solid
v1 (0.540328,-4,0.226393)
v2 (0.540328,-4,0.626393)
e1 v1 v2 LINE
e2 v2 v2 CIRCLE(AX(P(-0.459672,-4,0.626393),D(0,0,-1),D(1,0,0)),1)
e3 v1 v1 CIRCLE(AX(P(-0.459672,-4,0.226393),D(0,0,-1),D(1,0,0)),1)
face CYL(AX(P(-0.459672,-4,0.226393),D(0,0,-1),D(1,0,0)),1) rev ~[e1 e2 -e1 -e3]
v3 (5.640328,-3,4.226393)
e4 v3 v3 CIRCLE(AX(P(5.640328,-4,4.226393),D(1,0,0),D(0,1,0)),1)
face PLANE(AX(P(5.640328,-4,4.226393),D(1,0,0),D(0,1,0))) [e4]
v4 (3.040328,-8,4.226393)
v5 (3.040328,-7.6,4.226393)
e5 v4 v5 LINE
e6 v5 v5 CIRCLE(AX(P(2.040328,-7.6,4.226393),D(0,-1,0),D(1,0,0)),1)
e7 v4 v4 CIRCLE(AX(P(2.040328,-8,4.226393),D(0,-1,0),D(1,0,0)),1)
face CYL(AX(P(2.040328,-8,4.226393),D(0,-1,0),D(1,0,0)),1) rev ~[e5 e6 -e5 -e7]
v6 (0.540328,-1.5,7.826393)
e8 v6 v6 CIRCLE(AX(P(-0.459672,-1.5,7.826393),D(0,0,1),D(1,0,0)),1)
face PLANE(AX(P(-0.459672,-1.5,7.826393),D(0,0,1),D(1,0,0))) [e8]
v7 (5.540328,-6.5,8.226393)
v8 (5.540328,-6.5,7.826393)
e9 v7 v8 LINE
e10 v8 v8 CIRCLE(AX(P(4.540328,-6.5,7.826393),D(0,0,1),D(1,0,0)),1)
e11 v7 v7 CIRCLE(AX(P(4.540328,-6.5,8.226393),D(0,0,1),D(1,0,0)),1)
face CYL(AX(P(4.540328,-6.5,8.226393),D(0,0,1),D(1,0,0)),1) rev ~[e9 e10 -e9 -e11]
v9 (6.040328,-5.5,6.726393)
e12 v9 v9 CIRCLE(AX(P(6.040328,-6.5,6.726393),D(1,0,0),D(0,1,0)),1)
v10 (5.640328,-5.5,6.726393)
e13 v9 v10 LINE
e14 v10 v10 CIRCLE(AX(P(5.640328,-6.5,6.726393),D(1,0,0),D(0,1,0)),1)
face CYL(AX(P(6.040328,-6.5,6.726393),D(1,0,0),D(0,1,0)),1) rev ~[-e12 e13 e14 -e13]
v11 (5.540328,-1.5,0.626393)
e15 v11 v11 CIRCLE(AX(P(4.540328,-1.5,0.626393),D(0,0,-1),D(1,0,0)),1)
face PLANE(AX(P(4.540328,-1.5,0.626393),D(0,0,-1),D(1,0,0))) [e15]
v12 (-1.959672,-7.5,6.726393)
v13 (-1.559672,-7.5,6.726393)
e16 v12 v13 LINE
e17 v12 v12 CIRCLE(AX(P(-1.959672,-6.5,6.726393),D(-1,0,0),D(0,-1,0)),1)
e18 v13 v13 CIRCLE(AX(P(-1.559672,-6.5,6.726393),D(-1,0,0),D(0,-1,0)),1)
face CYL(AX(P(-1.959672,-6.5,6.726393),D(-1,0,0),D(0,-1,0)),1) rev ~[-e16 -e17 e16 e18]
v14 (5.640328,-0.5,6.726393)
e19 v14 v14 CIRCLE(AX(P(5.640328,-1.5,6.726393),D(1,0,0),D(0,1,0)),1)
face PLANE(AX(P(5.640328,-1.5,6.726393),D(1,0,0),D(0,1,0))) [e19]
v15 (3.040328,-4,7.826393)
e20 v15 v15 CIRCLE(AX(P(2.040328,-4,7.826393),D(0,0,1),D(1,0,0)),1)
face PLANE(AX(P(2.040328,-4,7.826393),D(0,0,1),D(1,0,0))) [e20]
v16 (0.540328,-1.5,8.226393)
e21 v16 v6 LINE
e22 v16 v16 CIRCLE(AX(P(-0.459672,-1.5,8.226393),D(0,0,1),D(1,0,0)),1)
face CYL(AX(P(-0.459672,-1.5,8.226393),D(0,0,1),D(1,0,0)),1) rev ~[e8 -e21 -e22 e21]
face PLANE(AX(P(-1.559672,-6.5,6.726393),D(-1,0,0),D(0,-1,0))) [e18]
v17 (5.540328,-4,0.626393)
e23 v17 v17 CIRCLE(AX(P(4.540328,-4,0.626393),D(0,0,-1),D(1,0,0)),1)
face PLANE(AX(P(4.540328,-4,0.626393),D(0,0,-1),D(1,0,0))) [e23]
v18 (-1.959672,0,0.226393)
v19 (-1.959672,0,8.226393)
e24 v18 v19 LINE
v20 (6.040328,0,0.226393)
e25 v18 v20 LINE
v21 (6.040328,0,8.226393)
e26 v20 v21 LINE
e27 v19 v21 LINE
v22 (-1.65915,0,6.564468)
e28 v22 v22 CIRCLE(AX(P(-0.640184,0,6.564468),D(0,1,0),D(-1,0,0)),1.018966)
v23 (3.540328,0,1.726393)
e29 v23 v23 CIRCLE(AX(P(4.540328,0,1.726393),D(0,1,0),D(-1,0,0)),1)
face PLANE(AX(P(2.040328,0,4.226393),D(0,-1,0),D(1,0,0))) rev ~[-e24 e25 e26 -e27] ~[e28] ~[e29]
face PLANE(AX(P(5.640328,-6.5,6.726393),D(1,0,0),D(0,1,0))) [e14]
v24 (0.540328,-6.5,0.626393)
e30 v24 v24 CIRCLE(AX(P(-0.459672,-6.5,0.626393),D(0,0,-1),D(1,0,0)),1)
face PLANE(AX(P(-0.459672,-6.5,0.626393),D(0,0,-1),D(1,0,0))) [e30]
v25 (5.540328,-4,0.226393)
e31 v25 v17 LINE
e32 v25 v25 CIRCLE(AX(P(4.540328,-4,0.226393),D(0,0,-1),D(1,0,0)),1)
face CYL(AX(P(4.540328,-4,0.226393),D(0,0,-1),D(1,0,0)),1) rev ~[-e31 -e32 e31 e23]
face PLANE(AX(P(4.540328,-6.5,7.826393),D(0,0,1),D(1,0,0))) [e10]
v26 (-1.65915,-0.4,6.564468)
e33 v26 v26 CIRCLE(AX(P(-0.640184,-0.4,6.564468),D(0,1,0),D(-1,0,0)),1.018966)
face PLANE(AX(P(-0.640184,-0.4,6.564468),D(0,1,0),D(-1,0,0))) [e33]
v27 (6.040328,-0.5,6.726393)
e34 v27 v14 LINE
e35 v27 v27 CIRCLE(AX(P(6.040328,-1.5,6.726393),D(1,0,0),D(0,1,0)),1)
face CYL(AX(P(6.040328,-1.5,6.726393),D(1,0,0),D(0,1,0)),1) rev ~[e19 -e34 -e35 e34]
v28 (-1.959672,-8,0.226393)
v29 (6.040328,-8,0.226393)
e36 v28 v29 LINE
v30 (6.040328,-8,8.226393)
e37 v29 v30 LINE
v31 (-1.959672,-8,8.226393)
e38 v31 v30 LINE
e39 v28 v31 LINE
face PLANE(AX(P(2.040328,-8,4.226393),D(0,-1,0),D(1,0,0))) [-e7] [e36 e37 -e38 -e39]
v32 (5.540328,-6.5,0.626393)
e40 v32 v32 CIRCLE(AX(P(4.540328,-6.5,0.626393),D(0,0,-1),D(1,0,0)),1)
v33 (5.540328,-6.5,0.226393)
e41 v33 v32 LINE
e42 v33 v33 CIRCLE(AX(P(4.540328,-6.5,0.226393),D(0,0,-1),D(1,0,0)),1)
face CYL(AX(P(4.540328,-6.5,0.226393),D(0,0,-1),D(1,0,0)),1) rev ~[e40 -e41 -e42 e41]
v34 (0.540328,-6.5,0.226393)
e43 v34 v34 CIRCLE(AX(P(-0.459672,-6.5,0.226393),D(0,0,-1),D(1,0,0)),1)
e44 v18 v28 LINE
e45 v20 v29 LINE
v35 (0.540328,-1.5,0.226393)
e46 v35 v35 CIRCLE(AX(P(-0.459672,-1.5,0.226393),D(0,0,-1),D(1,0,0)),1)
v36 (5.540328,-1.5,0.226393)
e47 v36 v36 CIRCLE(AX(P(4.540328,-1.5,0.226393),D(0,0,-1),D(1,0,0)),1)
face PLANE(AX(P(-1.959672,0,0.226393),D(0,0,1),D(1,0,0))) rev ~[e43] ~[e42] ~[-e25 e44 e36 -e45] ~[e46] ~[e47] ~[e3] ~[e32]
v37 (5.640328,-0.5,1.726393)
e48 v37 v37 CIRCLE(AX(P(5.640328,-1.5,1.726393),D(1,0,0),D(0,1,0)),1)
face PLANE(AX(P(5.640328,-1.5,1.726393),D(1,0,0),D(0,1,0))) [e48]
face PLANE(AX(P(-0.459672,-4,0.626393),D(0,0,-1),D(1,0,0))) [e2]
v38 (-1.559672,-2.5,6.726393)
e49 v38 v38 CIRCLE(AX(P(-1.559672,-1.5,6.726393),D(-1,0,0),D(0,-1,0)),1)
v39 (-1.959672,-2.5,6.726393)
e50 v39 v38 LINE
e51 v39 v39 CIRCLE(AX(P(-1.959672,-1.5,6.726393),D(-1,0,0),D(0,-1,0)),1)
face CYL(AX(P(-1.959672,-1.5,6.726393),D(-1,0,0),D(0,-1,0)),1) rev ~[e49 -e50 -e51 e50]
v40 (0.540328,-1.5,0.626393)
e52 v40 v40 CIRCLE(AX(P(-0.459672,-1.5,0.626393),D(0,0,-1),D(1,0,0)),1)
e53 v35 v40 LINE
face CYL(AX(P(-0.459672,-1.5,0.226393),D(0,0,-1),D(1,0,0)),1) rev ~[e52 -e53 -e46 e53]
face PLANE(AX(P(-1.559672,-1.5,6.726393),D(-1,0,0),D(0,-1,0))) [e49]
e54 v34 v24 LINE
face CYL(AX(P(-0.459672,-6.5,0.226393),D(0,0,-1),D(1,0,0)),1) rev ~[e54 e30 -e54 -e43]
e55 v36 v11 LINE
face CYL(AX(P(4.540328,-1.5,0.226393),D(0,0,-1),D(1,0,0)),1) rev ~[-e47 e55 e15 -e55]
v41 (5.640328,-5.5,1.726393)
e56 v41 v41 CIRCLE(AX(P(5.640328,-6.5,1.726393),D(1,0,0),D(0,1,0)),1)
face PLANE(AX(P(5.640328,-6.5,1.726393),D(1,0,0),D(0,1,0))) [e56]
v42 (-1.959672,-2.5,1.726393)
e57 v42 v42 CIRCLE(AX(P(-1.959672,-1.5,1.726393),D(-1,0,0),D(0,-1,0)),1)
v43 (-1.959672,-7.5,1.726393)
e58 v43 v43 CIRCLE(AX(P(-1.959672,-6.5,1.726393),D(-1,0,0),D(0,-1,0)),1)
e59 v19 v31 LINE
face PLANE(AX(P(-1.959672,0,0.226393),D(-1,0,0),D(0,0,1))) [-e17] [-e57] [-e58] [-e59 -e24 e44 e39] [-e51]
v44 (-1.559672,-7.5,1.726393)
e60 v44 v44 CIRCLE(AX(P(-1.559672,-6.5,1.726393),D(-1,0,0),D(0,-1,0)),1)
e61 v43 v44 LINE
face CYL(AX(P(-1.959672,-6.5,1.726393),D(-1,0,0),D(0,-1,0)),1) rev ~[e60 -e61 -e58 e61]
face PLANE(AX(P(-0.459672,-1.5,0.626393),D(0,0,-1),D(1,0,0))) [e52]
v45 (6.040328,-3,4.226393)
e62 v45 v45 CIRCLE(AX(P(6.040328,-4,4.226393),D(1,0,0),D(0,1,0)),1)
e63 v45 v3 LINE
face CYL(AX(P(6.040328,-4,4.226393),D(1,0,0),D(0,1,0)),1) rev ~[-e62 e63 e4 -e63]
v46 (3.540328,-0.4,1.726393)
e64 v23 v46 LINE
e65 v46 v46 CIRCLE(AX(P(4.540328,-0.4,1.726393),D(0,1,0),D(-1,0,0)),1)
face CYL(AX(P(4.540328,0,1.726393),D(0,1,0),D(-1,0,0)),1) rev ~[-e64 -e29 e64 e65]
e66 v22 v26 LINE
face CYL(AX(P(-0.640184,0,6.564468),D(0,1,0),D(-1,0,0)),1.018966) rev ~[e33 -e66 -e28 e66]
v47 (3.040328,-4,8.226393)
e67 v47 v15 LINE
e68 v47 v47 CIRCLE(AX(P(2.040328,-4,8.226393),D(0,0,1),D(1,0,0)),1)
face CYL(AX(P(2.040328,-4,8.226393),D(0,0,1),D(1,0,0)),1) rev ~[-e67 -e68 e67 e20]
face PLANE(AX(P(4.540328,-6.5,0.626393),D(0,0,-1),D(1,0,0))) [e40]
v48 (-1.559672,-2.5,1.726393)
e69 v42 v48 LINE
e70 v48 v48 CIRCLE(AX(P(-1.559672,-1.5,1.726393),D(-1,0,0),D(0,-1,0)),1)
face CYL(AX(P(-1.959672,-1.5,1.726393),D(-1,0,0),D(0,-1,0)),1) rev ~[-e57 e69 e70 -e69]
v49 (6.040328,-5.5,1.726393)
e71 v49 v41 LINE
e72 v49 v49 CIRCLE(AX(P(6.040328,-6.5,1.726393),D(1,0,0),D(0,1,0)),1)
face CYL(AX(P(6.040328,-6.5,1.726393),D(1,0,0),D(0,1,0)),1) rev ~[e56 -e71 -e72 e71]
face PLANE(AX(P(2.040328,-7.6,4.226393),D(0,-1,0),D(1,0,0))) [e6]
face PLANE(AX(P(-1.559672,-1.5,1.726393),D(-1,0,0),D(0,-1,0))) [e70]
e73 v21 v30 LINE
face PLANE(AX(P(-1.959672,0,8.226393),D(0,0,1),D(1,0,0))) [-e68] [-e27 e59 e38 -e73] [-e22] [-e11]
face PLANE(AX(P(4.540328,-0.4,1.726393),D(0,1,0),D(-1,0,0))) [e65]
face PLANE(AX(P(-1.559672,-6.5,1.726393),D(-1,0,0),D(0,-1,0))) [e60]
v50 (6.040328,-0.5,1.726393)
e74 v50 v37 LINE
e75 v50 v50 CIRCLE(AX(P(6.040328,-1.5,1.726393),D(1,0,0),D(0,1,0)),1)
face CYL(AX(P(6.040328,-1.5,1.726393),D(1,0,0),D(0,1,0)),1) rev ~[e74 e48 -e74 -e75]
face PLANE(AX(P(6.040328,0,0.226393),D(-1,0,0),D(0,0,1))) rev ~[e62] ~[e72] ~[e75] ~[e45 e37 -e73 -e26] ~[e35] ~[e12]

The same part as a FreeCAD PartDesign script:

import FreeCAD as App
import Part
import Sketcher


def add_polygon(sketch, points):
    """Adds a closed chain of lines whose ends are joined by coincident constraints."""
    first, n = sketch.GeometryCount, len(points)
    for a, b in zip(points, points[1:] + points[:1]):
        sketch.addGeometry(Part.LineSegment(App.Vector(*a, 0), App.Vector(*b, 0)), False)
    for i in range(n):
        sketch.addConstraint(Sketcher.Constraint("Coincident", first + i, 2, first + (i + 1) % n, 1))

doc = App.newDocument("Part")
params = doc.addObject("Spreadsheet::Sheet", "Params")
for row, (alias, value) in enumerate([
    ("sketch1_width", "8 mm"),
    ("pad1_length", "8 mm"),
    ("sketch2_diameter", "2 mm"),
    ("pocket1_length", "0.4 mm"),
    ("sketch3_diameter", "2 mm"),
    ("pocket2_length", "0.4 mm"),
    ("sketch4_diameter", "2 mm"),
    ("pocket3_length", "0.4 mm"),
    ("sketch5_diameter", "2 mm"),
    ("pocket4_length", "0.4 mm"),
    ("sketch6_diameter", "2 mm"),
    ("pocket5_length", "0.4 mm"),
    ("sketch7_diameter", "2 mm"),
    ("pocket6_length", "0.4 mm"),
], start=1):
    params.set(f"A{row}", alias)
    params.set(f"B{row}", "=" + value)
    params.setAlias(f"B{row}", alias)

body = doc.addObject("PartDesign::Body", "Body")

# Sketch on XZ plane
sketch1 = doc.addObject("Sketcher::SketchObject", "Sketch")
body.addObject(sketch1)
sketch1.AttachmentSupport = (doc.XZ_Plane, [""])
sketch1.MapMode = "FlatFace"
add_polygon(sketch1, [(-2, 8), (-2, 0), (6, 0), (6, 8)])  # lines 0-3
sketch1.addConstraint([
    Sketcher.Constraint("Vertical", 0),
    Sketcher.Constraint("Horizontal", 1),
    Sketcher.Constraint("Vertical", 2),
    Sketcher.Constraint("Horizontal", 3),
    Sketcher.Constraint("Equal", 3, 0),
    Sketcher.Constraint("DistanceX", 1, 1, 1, 2, 8.0),
    Sketcher.Constraint("DistanceX", 0, 2, -1, 1, 1.959672),
    Sketcher.Constraint("DistanceY", -1, 1, 0, 2, 0.226393),
])
sketch1.setExpression("Constraints[9]", "Params.sketch1_width")
pad1 = doc.addObject("PartDesign::Pad", "Pad")
body.addObject(pad1)
pad1.Profile = sketch1
pad1.setExpression("Length", "Params.pad1_length")

# Sketch on XZ plane
sketch2 = doc.addObject("Sketcher::SketchObject", "Sketch001")
body.addObject(sketch2)
sketch2.AttachmentSupport = (doc.XZ_Plane, [""])
sketch2.MapMode = "FlatFace"
sketch2.AttachmentOffset = App.Placement(App.Vector(0, 0, 8), App.Rotation())
sketch2.addGeometry(Part.Circle(App.Vector(2, 4.2, 0), App.Vector(0, 0, 1), 1), False)
sketch2.addConstraint([
    Sketcher.Constraint("Diameter", 0, 2.0),
    Sketcher.Constraint("DistanceX", -1, 1, 0, 3, 2.040328),
    Sketcher.Constraint("DistanceY", -1, 1, 0, 3, 4.226393),
])
sketch2.setExpression("Constraints[0]", "Params.sketch2_diameter")
pocket1 = doc.addObject("PartDesign::Pocket", "Pocket")
body.addObject(pocket1)
pocket1.Profile = sketch2
pocket1.setExpression("Length", "Params.pocket1_length")

# Sketch on XZ plane
sketch3 = doc.addObject("Sketcher::SketchObject", "Sketch002")
body.addObject(sketch3)
sketch3.AttachmentSupport = (doc.XZ_Plane, [""])
sketch3.MapMode = "FlatFace"
sketch3.addGeometry([
    Part.Circle(App.Vector(4.5, 1.7, 0), App.Vector(0, 0, 1), 1),
    Part.Circle(App.Vector(-0.6, 6.6, 0), App.Vector(0, 0, 1), 1),
], False)
sketch3.addConstraint([
    Sketcher.Constraint("Diameter", 0, 2.0),
    Sketcher.Constraint("Diameter", 1, 2.037932),
    Sketcher.Constraint("DistanceX", 1, 3, 0, 3, 5.180512),
    Sketcher.Constraint("DistanceX", -1, 1, 0, 3, 4.540328),
    Sketcher.Constraint("DistanceY", -1, 1, 0, 3, 1.726393),
    Sketcher.Constraint("DistanceY", -1, 1, 1, 3, 6.564468),
])
sketch3.setExpression("Constraints[0]", "Params.sketch3_diameter")
pocket2 = doc.addObject("PartDesign::Pocket", "Pocket001")
body.addObject(pocket2)
pocket2.Profile = sketch3
pocket2.setExpression("Length", "Params.pocket2_length")
pocket2.Reversed = True

# Sketch on YZ plane
sketch4 = doc.addObject("Sketcher::SketchObject", "Sketch003")
body.addObject(sketch4)
sketch4.AttachmentSupport = (doc.YZ_Plane, [""])
sketch4.MapMode = "FlatFace"
sketch4.AttachmentOffset = App.Placement(App.Vector(0, 0, -1.959672), App.Rotation())
sketch4.addGeometry([
    Part.Circle(App.Vector(-6.5, 6.7, 0), App.Vector(0, 0, 1), 1),
    Part.Circle(App.Vector(-1.5, 6.7, 0), App.Vector(0, 0, 1), 1),
    Part.Circle(App.Vector(-1.5, 1.7, 0), App.Vector(0, 0, 1), 1),
    Part.Circle(App.Vector(-6.5, 1.7, 0), App.Vector(0, 0, 1), 1),
], False)
sketch4.addConstraint([
    Sketcher.Constraint("Equal", 0, 1),
    Sketcher.Constraint("Equal", 1, 2),
    Sketcher.Constraint("Equal", 2, 3),
    Sketcher.Constraint("Horizontal", 0, 3, 1, 3),
    Sketcher.Constraint("Horizontal", 2, 3, 3, 3),
    Sketcher.Constraint("Vertical", 1, 3, 2, 3),
    Sketcher.Constraint("Vertical", 0, 3, 3, 3),
    Sketcher.Constraint("Diameter", 0, 2.0),
    Sketcher.Constraint("DistanceX", 0, 3, 1, 3, 5.0),
    Sketcher.Constraint("DistanceY", 2, 3, 1, 3, 5.0),
    Sketcher.Constraint("DistanceX", 0, 3, -1, 1, 6.5),
    Sketcher.Constraint("DistanceY", -1, 1, 0, 3, 6.726393),
])
sketch4.setExpression("Constraints[7]", "Params.sketch4_diameter")
pocket3 = doc.addObject("PartDesign::Pocket", "Pocket002")
body.addObject(pocket3)
pocket3.Profile = sketch4
pocket3.setExpression("Length", "Params.pocket3_length")
pocket3.Reversed = True

# Sketch on YZ plane
sketch5 = doc.addObject("Sketcher::SketchObject", "Sketch004")
body.addObject(sketch5)
sketch5.AttachmentSupport = (doc.YZ_Plane, [""])
sketch5.MapMode = "FlatFace"
sketch5.AttachmentOffset = App.Placement(App.Vector(0, 0, 6.040328), App.Rotation())
sketch5.addGeometry([
    Part.Circle(App.Vector(-4, 4.2, 0), App.Vector(0, 0, 1), 1),  # 0
    Part.Circle(App.Vector(-6.5, 6.7, 0), App.Vector(0, 0, 1), 1),  # 1
    Part.Circle(App.Vector(-1.5, 6.7, 0), App.Vector(0, 0, 1), 1),  # 2
    Part.Circle(App.Vector(-1.5, 1.7, 0), App.Vector(0, 0, 1), 1),  # 3
    Part.Circle(App.Vector(-6.5, 1.7, 0), App.Vector(0, 0, 1), 1),  # 4
], False)
sketch5.addConstraint([
    Sketcher.Constraint("Equal", 0, 1),
    Sketcher.Constraint("Equal", 1, 2),
    Sketcher.Constraint("Equal", 2, 3),
    Sketcher.Constraint("Equal", 3, 4),
    Sketcher.Constraint("Horizontal", 1, 3, 2, 3),
    Sketcher.Constraint("Horizontal", 3, 3, 4, 3),
    Sketcher.Constraint("Vertical", 2, 3, 3, 3),
    Sketcher.Constraint("Vertical", 1, 3, 4, 3),
    Sketcher.Constraint("Diameter", 0, 2.0),
    Sketcher.Constraint("DistanceX", 0, 3, -1, 1, 4.0),
    Sketcher.Constraint("DistanceX", 1, 3, 2, 3, 5.0),
    Sketcher.Constraint("DistanceY", 3, 3, 2, 3, 5.0),
    Sketcher.Constraint("DistanceX", 1, 3, -1, 1, 6.5),
    Sketcher.Constraint("DistanceY", 0, 3, 1, 3, 2.5),
    Sketcher.Constraint("DistanceY", -1, 1, 0, 3, 4.226393),
])
sketch5.setExpression("Constraints[8]", "Params.sketch5_diameter")
pocket4 = doc.addObject("PartDesign::Pocket", "Pocket003")
body.addObject(pocket4)
pocket4.Profile = sketch5
pocket4.setExpression("Length", "Params.pocket4_length")

# Sketch on XY plane
sketch6 = doc.addObject("Sketcher::SketchObject", "Sketch005")
body.addObject(sketch6)
sketch6.AttachmentSupport = (doc.XY_Plane, [""])
sketch6.MapMode = "FlatFace"
sketch6.AttachmentOffset = App.Placement(App.Vector(0, 0, 8.226393), App.Rotation())
sketch6.addGeometry([
    Part.Circle(App.Vector(-0.5, -1.5, 0), App.Vector(0, 0, 1), 1),
    Part.Circle(App.Vector(2, -4, 0), App.Vector(0, 0, 1), 1),
    Part.Circle(App.Vector(4.5, -6.5, 0), App.Vector(0, 0, 1), 1),
], False)
sketch6.addConstraint([
    Sketcher.Constraint("Equal", 0, 1),
    Sketcher.Constraint("Equal", 1, 2),
    Sketcher.Constraint("Diameter", 0, 2.0),
    Sketcher.Constraint("DistanceY", 1, 3, -1, 1, 4.0),
    Sketcher.Constraint("DistanceX", 0, 3, 2, 3, 5.0),
    Sketcher.Constraint("DistanceY", 2, 3, 0, 3, 5.0),
    Sketcher.Constraint("DistanceY", 0, 3, -1, 1, 1.5),
    Sketcher.Constraint("DistanceX", 0, 3, 1, 3, 2.5),
    Sketcher.Constraint("DistanceX", -1, 1, 1, 3, 2.040328),
])
sketch6.setExpression("Constraints[2]", "Params.sketch6_diameter")
pocket5 = doc.addObject("PartDesign::Pocket", "Pocket004")
body.addObject(pocket5)
pocket5.Profile = sketch6
pocket5.setExpression("Length", "Params.pocket5_length")

# Sketch on XY plane
sketch7 = doc.addObject("Sketcher::SketchObject", "Sketch006")
body.addObject(sketch7)
sketch7.AttachmentSupport = (doc.XY_Plane, [""])
sketch7.MapMode = "FlatFace"
sketch7.AttachmentOffset = App.Placement(App.Vector(0, 0, 0.226393), App.Rotation())
sketch7.addGeometry([
    Part.Circle(App.Vector(-0.5, -6.5, 0), App.Vector(0, 0, 1), 1),  # 0
    Part.Circle(App.Vector(-0.5, -4, 0), App.Vector(0, 0, 1), 1),  # 1
    Part.Circle(App.Vector(-0.5, -1.5, 0), App.Vector(0, 0, 1), 1),  # 2
    Part.Circle(App.Vector(4.5, -1.5, 0), App.Vector(0, 0, 1), 1),  # 3
    Part.Circle(App.Vector(4.5, -4, 0), App.Vector(0, 0, 1), 1),  # 4
    Part.Circle(App.Vector(4.5, -6.5, 0), App.Vector(0, 0, 1), 1),  # 5
], False)
sketch7.addConstraint([
    Sketcher.Constraint("Equal", 0, 1),
    Sketcher.Constraint("Equal", 1, 2),
    Sketcher.Constraint("Equal", 2, 3),
    Sketcher.Constraint("Equal", 3, 4),
    Sketcher.Constraint("Equal", 4, 5),
    Sketcher.Constraint("Horizontal", 2, 3, 3, 3),
    Sketcher.Constraint("Horizontal", 1, 3, 4, 3),
    Sketcher.Constraint("Horizontal", 0, 3, 5, 3),
    Sketcher.Constraint("Vertical", 0, 3, 1, 3),
    Sketcher.Constraint("Vertical", 1, 3, 2, 3),
    Sketcher.Constraint("Vertical", 3, 3, 4, 3),
    Sketcher.Constraint("Vertical", 4, 3, 5, 3),
    Sketcher.Constraint("Diameter", 0, 2.0),
    Sketcher.Constraint("DistanceY", 1, 3, -1, 1, 4.0),
    Sketcher.Constraint("DistanceY", 0, 3, 2, 3, 5.0),
    Sketcher.Constraint("DistanceX", 2, 3, 3, 3, 5.0),
    Sketcher.Constraint("DistanceY", 0, 3, -1, 1, 6.5),
    Sketcher.Constraint("DistanceX", 0, 3, -1, 1, 0.459672),
])
sketch7.setExpression("Constraints[12]", "Params.sketch7_diameter")
pocket6 = doc.addObject("PartDesign::Pocket", "Pocket005")
body.addObject(pocket6)
pocket6.Profile = sketch7
pocket6.setExpression("Length", "Params.pocket6_length")
pocket6.Reversed = True

doc.recompute()
